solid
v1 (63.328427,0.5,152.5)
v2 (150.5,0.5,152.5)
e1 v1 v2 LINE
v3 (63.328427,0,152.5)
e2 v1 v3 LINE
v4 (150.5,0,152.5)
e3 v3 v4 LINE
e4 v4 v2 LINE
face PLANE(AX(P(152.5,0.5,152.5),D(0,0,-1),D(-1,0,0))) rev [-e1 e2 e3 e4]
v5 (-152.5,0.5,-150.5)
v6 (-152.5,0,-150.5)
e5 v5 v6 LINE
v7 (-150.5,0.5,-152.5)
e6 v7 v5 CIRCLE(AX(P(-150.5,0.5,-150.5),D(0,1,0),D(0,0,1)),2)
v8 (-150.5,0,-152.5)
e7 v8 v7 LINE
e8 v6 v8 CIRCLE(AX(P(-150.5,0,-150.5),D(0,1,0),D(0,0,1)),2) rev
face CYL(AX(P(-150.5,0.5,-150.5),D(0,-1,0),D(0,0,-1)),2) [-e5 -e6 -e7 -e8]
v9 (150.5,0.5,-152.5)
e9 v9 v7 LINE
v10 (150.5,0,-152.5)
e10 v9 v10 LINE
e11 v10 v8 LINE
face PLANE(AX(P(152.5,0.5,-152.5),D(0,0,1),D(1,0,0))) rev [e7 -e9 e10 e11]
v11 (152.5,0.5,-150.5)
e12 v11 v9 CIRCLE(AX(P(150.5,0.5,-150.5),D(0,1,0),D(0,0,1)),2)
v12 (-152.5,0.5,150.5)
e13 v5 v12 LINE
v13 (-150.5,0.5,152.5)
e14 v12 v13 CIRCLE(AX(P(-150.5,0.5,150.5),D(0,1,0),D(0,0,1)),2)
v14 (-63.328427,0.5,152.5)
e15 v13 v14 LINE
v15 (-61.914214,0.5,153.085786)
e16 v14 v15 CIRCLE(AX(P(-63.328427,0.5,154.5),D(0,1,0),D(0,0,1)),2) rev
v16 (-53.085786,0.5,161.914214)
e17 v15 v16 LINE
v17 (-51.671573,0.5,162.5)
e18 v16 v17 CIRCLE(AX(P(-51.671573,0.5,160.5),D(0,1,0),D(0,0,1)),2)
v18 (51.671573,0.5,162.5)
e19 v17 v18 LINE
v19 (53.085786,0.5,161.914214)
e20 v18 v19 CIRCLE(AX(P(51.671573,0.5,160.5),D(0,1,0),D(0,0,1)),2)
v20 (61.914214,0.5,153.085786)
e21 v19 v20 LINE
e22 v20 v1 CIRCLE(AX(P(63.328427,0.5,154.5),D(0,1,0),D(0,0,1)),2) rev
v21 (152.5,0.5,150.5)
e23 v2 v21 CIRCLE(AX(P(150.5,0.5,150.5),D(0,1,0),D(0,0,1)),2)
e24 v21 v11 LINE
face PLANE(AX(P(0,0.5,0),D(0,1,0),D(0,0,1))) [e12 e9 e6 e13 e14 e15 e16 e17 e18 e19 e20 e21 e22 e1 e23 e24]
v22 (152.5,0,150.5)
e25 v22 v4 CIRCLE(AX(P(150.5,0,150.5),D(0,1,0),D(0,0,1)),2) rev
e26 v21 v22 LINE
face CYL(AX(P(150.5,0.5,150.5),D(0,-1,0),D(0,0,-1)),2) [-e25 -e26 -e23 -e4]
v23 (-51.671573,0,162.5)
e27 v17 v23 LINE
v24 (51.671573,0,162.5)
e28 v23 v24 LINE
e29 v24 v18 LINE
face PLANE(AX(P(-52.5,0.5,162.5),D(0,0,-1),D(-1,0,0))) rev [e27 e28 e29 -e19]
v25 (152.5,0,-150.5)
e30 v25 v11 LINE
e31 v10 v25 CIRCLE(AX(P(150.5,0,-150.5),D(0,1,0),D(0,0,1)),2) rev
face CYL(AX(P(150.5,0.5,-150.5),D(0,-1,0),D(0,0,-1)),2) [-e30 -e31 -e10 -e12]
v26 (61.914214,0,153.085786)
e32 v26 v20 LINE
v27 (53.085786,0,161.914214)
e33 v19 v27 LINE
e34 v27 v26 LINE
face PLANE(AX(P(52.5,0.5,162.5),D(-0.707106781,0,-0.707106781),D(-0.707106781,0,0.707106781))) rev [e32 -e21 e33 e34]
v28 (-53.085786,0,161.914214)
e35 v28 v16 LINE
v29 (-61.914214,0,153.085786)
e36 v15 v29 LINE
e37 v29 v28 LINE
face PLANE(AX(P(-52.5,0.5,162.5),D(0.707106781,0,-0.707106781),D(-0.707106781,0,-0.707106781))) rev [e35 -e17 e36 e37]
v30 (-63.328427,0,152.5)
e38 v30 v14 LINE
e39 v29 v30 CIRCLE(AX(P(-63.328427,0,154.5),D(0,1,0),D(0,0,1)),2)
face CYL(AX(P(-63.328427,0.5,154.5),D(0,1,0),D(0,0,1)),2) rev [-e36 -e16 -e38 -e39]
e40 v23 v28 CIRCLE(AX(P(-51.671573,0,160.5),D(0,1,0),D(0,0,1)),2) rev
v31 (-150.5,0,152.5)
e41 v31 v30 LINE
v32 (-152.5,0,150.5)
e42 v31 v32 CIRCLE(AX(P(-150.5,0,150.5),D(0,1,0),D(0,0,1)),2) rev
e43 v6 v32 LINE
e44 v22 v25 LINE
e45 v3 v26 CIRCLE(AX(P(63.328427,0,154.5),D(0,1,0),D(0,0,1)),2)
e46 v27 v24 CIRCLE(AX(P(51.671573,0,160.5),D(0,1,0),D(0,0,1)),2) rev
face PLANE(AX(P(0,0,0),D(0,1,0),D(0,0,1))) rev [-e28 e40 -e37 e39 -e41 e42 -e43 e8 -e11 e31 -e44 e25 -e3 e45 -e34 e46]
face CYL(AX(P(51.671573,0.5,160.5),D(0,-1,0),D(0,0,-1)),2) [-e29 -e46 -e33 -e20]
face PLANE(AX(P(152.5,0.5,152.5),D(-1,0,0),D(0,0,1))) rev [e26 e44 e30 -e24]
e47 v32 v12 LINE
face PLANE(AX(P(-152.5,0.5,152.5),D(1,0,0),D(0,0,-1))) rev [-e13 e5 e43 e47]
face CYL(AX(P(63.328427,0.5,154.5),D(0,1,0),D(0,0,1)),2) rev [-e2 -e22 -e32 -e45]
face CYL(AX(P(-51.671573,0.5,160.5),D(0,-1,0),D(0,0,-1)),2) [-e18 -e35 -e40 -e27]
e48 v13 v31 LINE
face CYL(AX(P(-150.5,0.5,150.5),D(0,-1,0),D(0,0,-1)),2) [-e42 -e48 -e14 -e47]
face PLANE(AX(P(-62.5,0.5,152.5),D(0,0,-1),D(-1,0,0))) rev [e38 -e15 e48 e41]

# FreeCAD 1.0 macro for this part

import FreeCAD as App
import Part
import Sketcher
from FreeCAD import Vector
Q = App.Units.Quantity


def edges_at(feature, points):
    """Names of the edges that pass closest to the given points."""
    edges = feature.Shape.Edges
    near = lambda p: min(range(len(edges)), key=lambda i: edges[i].distToShape(Part.Vertex(*p))[0])
    return sorted({f"Edge{near(p) + 1}" for p in points})

doc = App.newDocument("Part")
body = doc.addObject("PartDesign::Body", "Body")

sketch1 = body.newObject("Sketcher::SketchObject", "Sketch")
sketch1.AttachmentSupport = (doc.getObject("XZ_Plane"), [""])
sketch1.MapMode = "FlatFace"
sketch1.addGeometry(Part.LineSegment(Vector(-52.5, 162.5, 0), Vector(52.5, 162.5, 0)), False)
sketch1.addGeometry(Part.LineSegment(Vector(52.5, 162.5, 0), Vector(62.5, 152.5, 0)), False)
sketch1.addGeometry(Part.LineSegment(Vector(62.5, 152.5, 0), Vector(152.5, 152.5, 0)), False)
sketch1.addGeometry(Part.LineSegment(Vector(152.5, 152.5, 0), Vector(152.5, -152.5, 0)), False)
sketch1.addGeometry(Part.LineSegment(Vector(152.5, -152.5, 0), Vector(-152.5, -152.5, 0)), False)
sketch1.addGeometry(Part.LineSegment(Vector(-152.5, -152.5, 0), Vector(-152.5, 152.5, 0)), False)
sketch1.addGeometry(Part.LineSegment(Vector(-152.5, 152.5, 0), Vector(-62.5, 152.5, 0)), False)
sketch1.addGeometry(Part.LineSegment(Vector(-62.5, 152.5, 0), Vector(-52.5, 162.5, 0)), False)
sketch1.addConstraint(Sketcher.Constraint("Coincident", 0, 2, 1, 1))
sketch1.addConstraint(Sketcher.Constraint("Coincident", 1, 2, 2, 1))
sketch1.addConstraint(Sketcher.Constraint("Coincident", 2, 2, 3, 1))
sketch1.addConstraint(Sketcher.Constraint("Coincident", 3, 2, 4, 1))
sketch1.addConstraint(Sketcher.Constraint("Coincident", 4, 2, 5, 1))
sketch1.addConstraint(Sketcher.Constraint("Coincident", 5, 2, 6, 1))
sketch1.addConstraint(Sketcher.Constraint("Coincident", 6, 2, 7, 1))
sketch1.addConstraint(Sketcher.Constraint("Coincident", 7, 2, 0, 1))
sketch1.addConstraint(Sketcher.Constraint("Horizontal", 0))
sketch1.addConstraint(Sketcher.Constraint("Horizontal", 2))
sketch1.addConstraint(Sketcher.Constraint("Vertical", 3))
sketch1.addConstraint(Sketcher.Constraint("Horizontal", 4))
sketch1.addConstraint(Sketcher.Constraint("Vertical", 5))
sketch1.addConstraint(Sketcher.Constraint("Horizontal", 6))
sketch1.addConstraint(Sketcher.Constraint("Symmetric", 2, 2, 4, 2, -1, 1))
sketch1.addConstraint(Sketcher.Constraint("Symmetric", 1, 2, 6, 2, -2))
sketch1.addConstraint(Sketcher.Constraint("Perpendicular", 1, 7))
sketch1.addConstraint(Sketcher.Constraint("Equal", 4, 3))
sketch1.addConstraint(Sketcher.Constraint("Equal", 1, 7))
sketch1.addConstraint(Sketcher.Constraint("DistanceX", 0, 1, 0, 2, Q("105 mm")))
sketch1.addConstraint(Sketcher.Constraint("DistanceX", 2, 1, 2, 2, Q("90 mm")))
sketch1.addConstraint(Sketcher.Constraint("DistanceX", 4, 2, 4, 1, Q("305 mm")))
pad1 = body.newObject("PartDesign::Pad", "Pad")
pad1.Profile = sketch1
pad1.Length = 0.5
pad1.Reversed = True
doc.recompute()

fillet = body.newObject("PartDesign::Fillet", "Fillet")
fillet.Base = (pad1, edges_at(pad1, [
    (-152.5, 0.25, -152.5),
    (152.5, 0.25, -152.5),
    (152.5, 0.25, 152.5),
    (62.5, 0.25, 152.5),
    (52.5, 0.25, 162.5),
    (-52.5, 0.25, 162.5),
    (-62.5, 0.25, 152.5),
    (-152.5, 0.25, 152.5),
]))
fillet.Radius = 2

doc.recompute()
